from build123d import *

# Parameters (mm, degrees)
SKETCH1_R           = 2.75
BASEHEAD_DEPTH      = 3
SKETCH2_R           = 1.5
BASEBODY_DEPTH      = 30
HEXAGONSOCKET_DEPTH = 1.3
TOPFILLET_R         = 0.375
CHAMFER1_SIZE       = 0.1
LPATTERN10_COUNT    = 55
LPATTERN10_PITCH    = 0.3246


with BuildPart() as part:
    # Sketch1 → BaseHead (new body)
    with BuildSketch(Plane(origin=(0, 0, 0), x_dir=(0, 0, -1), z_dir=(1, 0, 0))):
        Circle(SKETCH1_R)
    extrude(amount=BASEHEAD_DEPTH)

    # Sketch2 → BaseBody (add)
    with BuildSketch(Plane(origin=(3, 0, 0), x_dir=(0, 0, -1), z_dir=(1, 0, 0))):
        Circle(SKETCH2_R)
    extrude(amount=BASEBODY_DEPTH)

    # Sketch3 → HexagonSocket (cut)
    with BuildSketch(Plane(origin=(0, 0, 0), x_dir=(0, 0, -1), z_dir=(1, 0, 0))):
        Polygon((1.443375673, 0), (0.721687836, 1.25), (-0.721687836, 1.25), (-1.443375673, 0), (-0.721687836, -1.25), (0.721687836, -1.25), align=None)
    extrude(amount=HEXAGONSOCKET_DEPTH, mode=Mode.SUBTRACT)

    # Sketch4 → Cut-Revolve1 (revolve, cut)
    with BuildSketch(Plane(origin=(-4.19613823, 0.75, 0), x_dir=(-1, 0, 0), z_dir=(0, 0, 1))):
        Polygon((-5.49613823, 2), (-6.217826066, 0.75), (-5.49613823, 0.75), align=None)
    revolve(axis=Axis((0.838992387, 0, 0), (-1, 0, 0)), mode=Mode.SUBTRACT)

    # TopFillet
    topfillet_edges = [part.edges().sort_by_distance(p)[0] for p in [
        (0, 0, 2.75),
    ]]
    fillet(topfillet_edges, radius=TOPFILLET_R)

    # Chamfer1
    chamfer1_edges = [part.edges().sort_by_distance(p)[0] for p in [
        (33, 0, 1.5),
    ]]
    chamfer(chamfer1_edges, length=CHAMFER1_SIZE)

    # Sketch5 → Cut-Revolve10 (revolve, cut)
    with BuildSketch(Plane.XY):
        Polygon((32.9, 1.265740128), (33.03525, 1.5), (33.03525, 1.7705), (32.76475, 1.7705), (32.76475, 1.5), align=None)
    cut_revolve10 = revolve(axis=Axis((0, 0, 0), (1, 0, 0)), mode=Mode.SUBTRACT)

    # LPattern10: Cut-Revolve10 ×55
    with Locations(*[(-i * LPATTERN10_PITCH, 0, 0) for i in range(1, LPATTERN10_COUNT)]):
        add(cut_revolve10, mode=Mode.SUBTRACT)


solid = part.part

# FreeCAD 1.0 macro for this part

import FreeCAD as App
import Part
import Sketcher
Q = App.Units.Quantity


def edges_at(feature, points):
    """Names of the edges that pass closest to the given points."""
    edges = feature.Shape.Edges
    near = lambda p: min(range(len(edges)), key=lambda i: edges[i].distToShape(Part.Vertex(*p))[0])
    return sorted({f"Edge{near(p) + 1}" for p in points})

doc = App.newDocument("Part")
body = doc.addObject("PartDesign::Body", "Body")

sketch1 = body.newObject("Sketcher::SketchObject", "Sketch")
sketch1.AttachmentSupport = (doc.getObject("YZ_Plane"), [""])
sketch1.MapMode = "FlatFace"
sketch1.addGeometry(Part.Circle(App.Vector(0, 0, 0), App.Vector(0, 0, 1), 2.8), False)
sketch1.addConstraint(Sketcher.Constraint("Coincident", 0, 3, -1, 1))
sketch1.addConstraint(Sketcher.Constraint("Diameter", 0, 5.5))
pad1 = body.newObject("PartDesign::Pad", "Pad")
pad1.Profile = sketch1
pad1.Length = 3

sketch2 = body.newObject("Sketcher::SketchObject", "Sketch001")
sketch2.AttachmentSupport = (doc.getObject("YZ_Plane"), [""])
sketch2.MapMode = "FlatFace"
sketch2.AttachmentOffset = App.Placement(App.Vector(0, 0, 3), App.Rotation())
sketch2.addGeometry(Part.Circle(App.Vector(0, 0, 0), App.Vector(0, 0, 1), 1.5), False)
sketch2.addConstraint(Sketcher.Constraint("Coincident", 0, 3, -1, 1))
sketch2.addConstraint(Sketcher.Constraint("Diameter", 0, 3.0))
pad2 = body.newObject("PartDesign::Pad", "Pad001")
pad2.Profile = sketch2
pad2.Length = 30

sketch3 = body.newObject("Sketcher::SketchObject", "Sketch002")
sketch3.AttachmentSupport = (doc.getObject("YZ_Plane"), [""])
sketch3.MapMode = "FlatFace"
sketch3.addGeometry(Part.LineSegment(App.Vector(0, -1.4, 0), App.Vector(1.2, -0.7, 0)), False)
sketch3.addGeometry(Part.LineSegment(App.Vector(1.2, -0.7, 0), App.Vector(1.2, 0.7, 0)), False)
sketch3.addGeometry(Part.LineSegment(App.Vector(1.2, 0.7, 0), App.Vector(0, 1.4, 0)), False)
sketch3.addGeometry(Part.LineSegment(App.Vector(0, 1.4, 0), App.Vector(-1.2, 0.7, 0)), False)
sketch3.addGeometry(Part.LineSegment(App.Vector(-1.2, 0.7, 0), App.Vector(-1.2, -0.7, 0)), False)
sketch3.addGeometry(Part.LineSegment(App.Vector(-1.2, -0.7, 0), App.Vector(0, -1.4, 0)), False)
sketch3.addConstraint(Sketcher.Constraint("Coincident", 0, 2, 1, 1))
sketch3.addConstraint(Sketcher.Constraint("Coincident", 1, 2, 2, 1))
sketch3.addConstraint(Sketcher.Constraint("Coincident", 2, 2, 3, 1))
sketch3.addConstraint(Sketcher.Constraint("Coincident", 3, 2, 4, 1))
sketch3.addConstraint(Sketcher.Constraint("Coincident", 4, 2, 5, 1))
sketch3.addConstraint(Sketcher.Constraint("Coincident", 5, 2, 0, 1))
sketch3.addConstraint(Sketcher.Constraint("Vertical", 1))
sketch3.addConstraint(Sketcher.Constraint("Vertical", 4))
sketch3.addConstraint(Sketcher.Constraint("Symmetric", 0, 2, 3, 2, -1, 1))
sketch3.addConstraint(Sketcher.Constraint("Symmetric", 2, 2, 5, 2, -1, 1))
sketch3.addConstraint(Sketcher.Constraint("PointOnObject", 2, 2, -2))
sketch3.addConstraint(Sketcher.Constraint("Parallel", 2, 5))
sketch3.addConstraint(Sketcher.Constraint("Horizontal", 1, 2, 3, 2))
sketch3.addConstraint(Sketcher.Constraint("Angle", 0, Q("30 deg")))
sketch3.addConstraint(Sketcher.Constraint("DistanceX", 3, 2, 1, 2, 2.5))
sketch3.addConstraint(Sketcher.Constraint("DistanceY", 1, 1, 1, 2, 1.443376))
pocket1 = body.newObject("PartDesign::Pocket", "Pocket")
pocket1.Profile = sketch3
pocket1.Length = 1.3
pocket1.Reversed = True

sketch4 = body.newObject("Sketcher::SketchObject", "Sketch003")
sketch4.AttachmentSupport = (doc.getObject("XY_Plane"), [""])
sketch4.MapMode = "FlatFace"
sketch4.addGeometry(Part.LineSegment(App.Vector(1.3, -1.2, 0), App.Vector(2, 0, 0)), False)
sketch4.addGeometry(Part.LineSegment(App.Vector(2, 0, 0), App.Vector(1.3, 0, 0)), False)
sketch4.addGeometry(Part.LineSegment(App.Vector(1.3, 0, 0), App.Vector(1.3, -1.2, 0)), False)
sketch4.addConstraint(Sketcher.Constraint("Coincident", 0, 2, 1, 1))
sketch4.addConstraint(Sketcher.Constraint("Coincident", 1, 2, 2, 1))
sketch4.addConstraint(Sketcher.Constraint("Coincident", 2, 2, 0, 1))
sketch4.addConstraint(Sketcher.Constraint("Horizontal", 1))
sketch4.addConstraint(Sketcher.Constraint("Vertical", 2))
sketch4.addConstraint(Sketcher.Constraint("PointOnObject", 0, 2, -1))
sketch4.addConstraint(Sketcher.Constraint("Angle", 0, Q("60 deg")))
sketch4.addConstraint(Sketcher.Constraint("DistanceY", 2, 2, 2, 1, 1.25))
sketch4.addConstraint(Sketcher.Constraint("DistanceX", -1, 1, 1, 2, 1.3))
groove = body.newObject("PartDesign::Groove", "Groove")
groove.Profile = sketch4
groove.ReferenceAxis = (sketch4, ["H_Axis"])
groove.Angle = 360
doc.recompute()

fillet = body.newObject("PartDesign::Fillet", "Fillet")
fillet.Base = (groove, edges_at(groove, [(0, 0, 2.75)]))
fillet.Radius = 0.375
doc.recompute()

chamfer = body.newObject("PartDesign::Chamfer", "Chamfer")
chamfer.Base = (fillet, edges_at(fillet, [(33, 0, 1.5)]))
chamfer.Size = 0.1

sketch5 = body.newObject("Sketcher::SketchObject", "Sketch004")
sketch5.AttachmentSupport = (doc.getObject("XY_Plane"), [""])
sketch5.MapMode = "FlatFace"
sketch5.addGeometry(Part.LineSegment(App.Vector(32.9, 1.27, 0), App.Vector(33.04, 1.5, 0)), False)
sketch5.addGeometry(Part.LineSegment(App.Vector(33.04, 1.5, 0), App.Vector(33.04, 1.77, 0)), False)
sketch5.addGeometry(Part.LineSegment(App.Vector(33.04, 1.77, 0), App.Vector(32.76, 1.77, 0)), False)
sketch5.addGeometry(Part.LineSegment(App.Vector(32.76, 1.77, 0), App.Vector(32.76, 1.5, 0)), False)
sketch5.addGeometry(Part.LineSegment(App.Vector(32.76, 1.5, 0), App.Vector(32.9, 1.27, 0)), False)
sketch5.addConstraint(Sketcher.Constraint("Coincident", 0, 2, 1, 1))
sketch5.addConstraint(Sketcher.Constraint("Coincident", 1, 2, 2, 1))
sketch5.addConstraint(Sketcher.Constraint("Coincident", 2, 2, 3, 1))
sketch5.addConstraint(Sketcher.Constraint("Coincident", 3, 2, 4, 1))
sketch5.addConstraint(Sketcher.Constraint("Coincident", 4, 2, 0, 1))
sketch5.addConstraint(Sketcher.Constraint("Vertical", 1))
sketch5.addConstraint(Sketcher.Constraint("Horizontal", 2))
sketch5.addConstraint(Sketcher.Constraint("Vertical", 3))
sketch5.addConstraint(Sketcher.Constraint("Horizontal", 0, 2, 3, 2))
sketch5.addConstraint(Sketcher.Constraint("Equal", 2, 1))
sketch5.addConstraint(Sketcher.Constraint("Equal", 0, 4))
sketch5.addConstraint(Sketcher.Constraint("Angle", 0, Q("60 deg")))
sketch5.addConstraint(Sketcher.Constraint("DistanceY", -1, 1, 0, 2, 1.5))
sketch5.addConstraint(Sketcher.Constraint("DistanceX", -1, 1, 4, 2, 32.9))
sketch5.addConstraint(Sketcher.Constraint("DistanceX", 2, 2, 2, 1, 0.2705))
groove2 = body.newObject("PartDesign::Groove", "Groove001")
groove2.Profile = sketch5
groove2.ReferenceAxis = (sketch5, ["H_Axis"])
groove2.Angle = 360
doc.recompute()

linearpattern = body.newObject("PartDesign::LinearPattern", "LinearPattern")
linearpattern.Originals = [groove2]
linearpattern.Direction = (doc.getObject("X_Axis"), [""])
linearpattern.Mode = "offset"
linearpattern.Offset = 0.3246
linearpattern.Occurrences = 55
linearpattern.Reversed = True
body.Tip = linearpattern

doc.recompute()
